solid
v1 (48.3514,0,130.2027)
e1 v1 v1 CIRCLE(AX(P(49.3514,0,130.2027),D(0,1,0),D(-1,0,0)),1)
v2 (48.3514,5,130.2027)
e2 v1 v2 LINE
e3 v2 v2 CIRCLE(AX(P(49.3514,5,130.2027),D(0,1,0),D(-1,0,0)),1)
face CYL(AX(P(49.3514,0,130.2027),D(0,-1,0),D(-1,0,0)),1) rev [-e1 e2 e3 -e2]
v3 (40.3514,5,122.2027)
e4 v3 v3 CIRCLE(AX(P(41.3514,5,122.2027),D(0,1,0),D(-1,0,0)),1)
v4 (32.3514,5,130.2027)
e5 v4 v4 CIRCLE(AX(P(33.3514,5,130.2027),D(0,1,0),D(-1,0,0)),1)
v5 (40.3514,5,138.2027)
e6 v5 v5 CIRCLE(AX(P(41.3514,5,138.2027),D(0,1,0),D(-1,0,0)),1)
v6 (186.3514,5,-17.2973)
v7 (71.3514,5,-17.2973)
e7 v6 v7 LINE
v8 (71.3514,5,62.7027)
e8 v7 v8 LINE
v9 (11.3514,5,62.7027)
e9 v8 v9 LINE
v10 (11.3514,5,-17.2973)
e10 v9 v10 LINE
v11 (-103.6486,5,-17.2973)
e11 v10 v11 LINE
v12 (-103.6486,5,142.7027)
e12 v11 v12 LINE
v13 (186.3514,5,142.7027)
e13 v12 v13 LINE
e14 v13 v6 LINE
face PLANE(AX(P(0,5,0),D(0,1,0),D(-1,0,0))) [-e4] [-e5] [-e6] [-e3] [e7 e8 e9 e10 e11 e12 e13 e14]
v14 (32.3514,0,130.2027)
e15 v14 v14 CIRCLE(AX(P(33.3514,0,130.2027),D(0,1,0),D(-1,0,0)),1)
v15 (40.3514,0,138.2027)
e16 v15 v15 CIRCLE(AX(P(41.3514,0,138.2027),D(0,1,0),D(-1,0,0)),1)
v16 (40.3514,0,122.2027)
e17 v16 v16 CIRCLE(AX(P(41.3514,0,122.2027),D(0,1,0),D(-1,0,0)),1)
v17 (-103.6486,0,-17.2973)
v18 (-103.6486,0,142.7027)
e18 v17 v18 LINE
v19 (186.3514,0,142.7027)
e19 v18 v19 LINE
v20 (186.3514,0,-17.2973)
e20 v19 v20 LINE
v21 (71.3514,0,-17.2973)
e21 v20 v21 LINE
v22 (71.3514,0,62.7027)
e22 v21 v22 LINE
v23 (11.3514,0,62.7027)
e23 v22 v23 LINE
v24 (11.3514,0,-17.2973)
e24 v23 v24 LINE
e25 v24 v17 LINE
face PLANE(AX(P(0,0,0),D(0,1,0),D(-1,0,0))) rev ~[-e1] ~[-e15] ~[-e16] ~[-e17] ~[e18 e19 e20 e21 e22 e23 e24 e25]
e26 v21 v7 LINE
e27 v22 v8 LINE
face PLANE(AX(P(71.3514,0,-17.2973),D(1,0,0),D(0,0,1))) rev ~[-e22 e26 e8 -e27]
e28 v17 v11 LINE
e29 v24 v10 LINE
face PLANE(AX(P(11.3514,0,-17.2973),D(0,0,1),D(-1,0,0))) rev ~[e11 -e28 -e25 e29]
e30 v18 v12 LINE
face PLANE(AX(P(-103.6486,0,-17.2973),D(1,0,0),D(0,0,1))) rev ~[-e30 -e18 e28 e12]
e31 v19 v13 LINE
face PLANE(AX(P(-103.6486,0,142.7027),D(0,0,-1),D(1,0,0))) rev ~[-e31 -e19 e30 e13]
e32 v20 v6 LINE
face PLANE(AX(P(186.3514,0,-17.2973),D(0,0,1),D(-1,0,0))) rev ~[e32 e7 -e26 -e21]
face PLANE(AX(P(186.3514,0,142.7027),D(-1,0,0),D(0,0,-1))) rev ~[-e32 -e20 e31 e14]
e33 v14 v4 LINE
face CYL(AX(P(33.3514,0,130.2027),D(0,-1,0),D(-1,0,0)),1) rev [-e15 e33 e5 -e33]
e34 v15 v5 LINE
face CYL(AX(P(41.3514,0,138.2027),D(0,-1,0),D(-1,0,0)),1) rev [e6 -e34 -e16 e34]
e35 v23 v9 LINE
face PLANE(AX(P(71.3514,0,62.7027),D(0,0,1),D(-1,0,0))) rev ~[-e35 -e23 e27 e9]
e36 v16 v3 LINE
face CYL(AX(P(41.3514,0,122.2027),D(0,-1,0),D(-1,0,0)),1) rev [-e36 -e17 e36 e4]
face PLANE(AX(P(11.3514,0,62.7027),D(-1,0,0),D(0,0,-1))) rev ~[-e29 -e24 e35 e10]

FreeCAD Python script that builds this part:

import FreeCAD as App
import Part
import Sketcher
from FreeCAD import Vector
Q = App.Units.Quantity


def add_polygon(sketch, points):
    """Adds a closed chain of lines whose ends are joined by coincident constraints."""
    first, n = sketch.GeometryCount, len(points)
    for a, b in zip(points, points[1:] + points[:1]):
        sketch.addGeometry(Part.LineSegment(App.Vector(*a, 0), App.Vector(*b, 0)), False)
    for i in range(n):
        sketch.addConstraint(Sketcher.Constraint("Coincident", first + i, 2, first + (i + 1) % n, 1))

doc = App.newDocument("Part")
body = doc.addObject("PartDesign::Body", "Body")

sketch1 = body.newObject("Sketcher::SketchObject", "Sketch")
sketch1.AttachmentSupport = (doc.getObject("XZ_Plane"), [""])
sketch1.MapMode = "FlatFace"
add_polygon(sketch1, [(-103.6, -17.3), (-103.6, 142.7), (186.4, 142.7), (186.4, -17.3), (71.4, -17.3), (71.4, 62.7), (11.4, 62.7), (11.4, -17.3)])
sketch1.addGeometry(Part.Circle(Vector(49.4, 130.2, 0), Vector(0, 0, 1), 1), False)
sketch1.addGeometry(Part.Circle(Vector(41.4, 122.2, 0), Vector(0, 0, 1), 1), False)
sketch1.addGeometry(Part.Circle(Vector(33.4, 130.2, 0), Vector(0, 0, 1), 1), False)
sketch1.addGeometry(Part.Circle(Vector(41.4, 138.2, 0), Vector(0, 0, 1), 1), False)
sketch1.addConstraint(Sketcher.Constraint("Vertical", 0))
sketch1.addConstraint(Sketcher.Constraint("Horizontal", 1))
sketch1.addConstraint(Sketcher.Constraint("Vertical", 2))
sketch1.addConstraint(Sketcher.Constraint("Horizontal", 3))
sketch1.addConstraint(Sketcher.Constraint("Vertical", 4))
sketch1.addConstraint(Sketcher.Constraint("Horizontal", 5))
sketch1.addConstraint(Sketcher.Constraint("Vertical", 6))
sketch1.addConstraint(Sketcher.Constraint("Horizontal", 7))
sketch1.addConstraint(Sketcher.Constraint("Equal", 8, 9))
sketch1.addConstraint(Sketcher.Constraint("Equal", 9, 10))
sketch1.addConstraint(Sketcher.Constraint("Equal", 10, 11))
sketch1.addConstraint(Sketcher.Constraint("Horizontal", 8, 3, 10, 3))
sketch1.addConstraint(Sketcher.Constraint("Horizontal", 3, 2, 6, 2))
sketch1.addConstraint(Sketcher.Constraint("Vertical", 9, 3, 11, 3))
sketch1.addConstraint(Sketcher.Constraint("Equal", 3, 7))
sketch1.addConstraint(Sketcher.Constraint("Diameter", 8, Q("2 mm")))
sketch1.addConstraint(Sketcher.Constraint("DistanceX", 1, 1, 1, 2, Q("290 mm")))
sketch1.addConstraint(Sketcher.Constraint("DistanceX", 3, 2, 3, 1, Q("115 mm")))
sketch1.addConstraint(Sketcher.Constraint("DistanceY", 0, 1, 0, 2, Q("160 mm")))
sketch1.addConstraint(Sketcher.Constraint("DistanceY", 4, 1, 4, 2, Q("80 mm")))
sketch1.addConstraint(Sketcher.Constraint("DistanceX", 9, 3, 8, 3, Q("8 mm")))
sketch1.addConstraint(Sketcher.Constraint("DistanceY", 9, 3, 8, 3, Q("8 mm")))
sketch1.addConstraint(Sketcher.Constraint("DistanceX", 10, 3, 9, 3, Q("8 mm")))
sketch1.addConstraint(Sketcher.Constraint("DistanceY", 8, 3, 11, 3, Q("8 mm")))
sketch1.addConstraint(Sketcher.Constraint("DistanceX", 0, 2, 11, 3, Q("145 mm")))
sketch1.addConstraint(Sketcher.Constraint("DistanceY", 11, 3, 0, 2, Q("4.5 mm")))
sketch1.addConstraint(Sketcher.Constraint("DistanceX", -1, 1, 8, 3, Q("49.3514 mm")))
sketch1.addConstraint(Sketcher.Constraint("DistanceY", -1, 1, 8, 3, Q("130.2027 mm")))
pad1 = body.newObject("PartDesign::Pad", "Pad")
pad1.Profile = sketch1
pad1.Length = 5
pad1.Reversed = True

doc.recompute()
